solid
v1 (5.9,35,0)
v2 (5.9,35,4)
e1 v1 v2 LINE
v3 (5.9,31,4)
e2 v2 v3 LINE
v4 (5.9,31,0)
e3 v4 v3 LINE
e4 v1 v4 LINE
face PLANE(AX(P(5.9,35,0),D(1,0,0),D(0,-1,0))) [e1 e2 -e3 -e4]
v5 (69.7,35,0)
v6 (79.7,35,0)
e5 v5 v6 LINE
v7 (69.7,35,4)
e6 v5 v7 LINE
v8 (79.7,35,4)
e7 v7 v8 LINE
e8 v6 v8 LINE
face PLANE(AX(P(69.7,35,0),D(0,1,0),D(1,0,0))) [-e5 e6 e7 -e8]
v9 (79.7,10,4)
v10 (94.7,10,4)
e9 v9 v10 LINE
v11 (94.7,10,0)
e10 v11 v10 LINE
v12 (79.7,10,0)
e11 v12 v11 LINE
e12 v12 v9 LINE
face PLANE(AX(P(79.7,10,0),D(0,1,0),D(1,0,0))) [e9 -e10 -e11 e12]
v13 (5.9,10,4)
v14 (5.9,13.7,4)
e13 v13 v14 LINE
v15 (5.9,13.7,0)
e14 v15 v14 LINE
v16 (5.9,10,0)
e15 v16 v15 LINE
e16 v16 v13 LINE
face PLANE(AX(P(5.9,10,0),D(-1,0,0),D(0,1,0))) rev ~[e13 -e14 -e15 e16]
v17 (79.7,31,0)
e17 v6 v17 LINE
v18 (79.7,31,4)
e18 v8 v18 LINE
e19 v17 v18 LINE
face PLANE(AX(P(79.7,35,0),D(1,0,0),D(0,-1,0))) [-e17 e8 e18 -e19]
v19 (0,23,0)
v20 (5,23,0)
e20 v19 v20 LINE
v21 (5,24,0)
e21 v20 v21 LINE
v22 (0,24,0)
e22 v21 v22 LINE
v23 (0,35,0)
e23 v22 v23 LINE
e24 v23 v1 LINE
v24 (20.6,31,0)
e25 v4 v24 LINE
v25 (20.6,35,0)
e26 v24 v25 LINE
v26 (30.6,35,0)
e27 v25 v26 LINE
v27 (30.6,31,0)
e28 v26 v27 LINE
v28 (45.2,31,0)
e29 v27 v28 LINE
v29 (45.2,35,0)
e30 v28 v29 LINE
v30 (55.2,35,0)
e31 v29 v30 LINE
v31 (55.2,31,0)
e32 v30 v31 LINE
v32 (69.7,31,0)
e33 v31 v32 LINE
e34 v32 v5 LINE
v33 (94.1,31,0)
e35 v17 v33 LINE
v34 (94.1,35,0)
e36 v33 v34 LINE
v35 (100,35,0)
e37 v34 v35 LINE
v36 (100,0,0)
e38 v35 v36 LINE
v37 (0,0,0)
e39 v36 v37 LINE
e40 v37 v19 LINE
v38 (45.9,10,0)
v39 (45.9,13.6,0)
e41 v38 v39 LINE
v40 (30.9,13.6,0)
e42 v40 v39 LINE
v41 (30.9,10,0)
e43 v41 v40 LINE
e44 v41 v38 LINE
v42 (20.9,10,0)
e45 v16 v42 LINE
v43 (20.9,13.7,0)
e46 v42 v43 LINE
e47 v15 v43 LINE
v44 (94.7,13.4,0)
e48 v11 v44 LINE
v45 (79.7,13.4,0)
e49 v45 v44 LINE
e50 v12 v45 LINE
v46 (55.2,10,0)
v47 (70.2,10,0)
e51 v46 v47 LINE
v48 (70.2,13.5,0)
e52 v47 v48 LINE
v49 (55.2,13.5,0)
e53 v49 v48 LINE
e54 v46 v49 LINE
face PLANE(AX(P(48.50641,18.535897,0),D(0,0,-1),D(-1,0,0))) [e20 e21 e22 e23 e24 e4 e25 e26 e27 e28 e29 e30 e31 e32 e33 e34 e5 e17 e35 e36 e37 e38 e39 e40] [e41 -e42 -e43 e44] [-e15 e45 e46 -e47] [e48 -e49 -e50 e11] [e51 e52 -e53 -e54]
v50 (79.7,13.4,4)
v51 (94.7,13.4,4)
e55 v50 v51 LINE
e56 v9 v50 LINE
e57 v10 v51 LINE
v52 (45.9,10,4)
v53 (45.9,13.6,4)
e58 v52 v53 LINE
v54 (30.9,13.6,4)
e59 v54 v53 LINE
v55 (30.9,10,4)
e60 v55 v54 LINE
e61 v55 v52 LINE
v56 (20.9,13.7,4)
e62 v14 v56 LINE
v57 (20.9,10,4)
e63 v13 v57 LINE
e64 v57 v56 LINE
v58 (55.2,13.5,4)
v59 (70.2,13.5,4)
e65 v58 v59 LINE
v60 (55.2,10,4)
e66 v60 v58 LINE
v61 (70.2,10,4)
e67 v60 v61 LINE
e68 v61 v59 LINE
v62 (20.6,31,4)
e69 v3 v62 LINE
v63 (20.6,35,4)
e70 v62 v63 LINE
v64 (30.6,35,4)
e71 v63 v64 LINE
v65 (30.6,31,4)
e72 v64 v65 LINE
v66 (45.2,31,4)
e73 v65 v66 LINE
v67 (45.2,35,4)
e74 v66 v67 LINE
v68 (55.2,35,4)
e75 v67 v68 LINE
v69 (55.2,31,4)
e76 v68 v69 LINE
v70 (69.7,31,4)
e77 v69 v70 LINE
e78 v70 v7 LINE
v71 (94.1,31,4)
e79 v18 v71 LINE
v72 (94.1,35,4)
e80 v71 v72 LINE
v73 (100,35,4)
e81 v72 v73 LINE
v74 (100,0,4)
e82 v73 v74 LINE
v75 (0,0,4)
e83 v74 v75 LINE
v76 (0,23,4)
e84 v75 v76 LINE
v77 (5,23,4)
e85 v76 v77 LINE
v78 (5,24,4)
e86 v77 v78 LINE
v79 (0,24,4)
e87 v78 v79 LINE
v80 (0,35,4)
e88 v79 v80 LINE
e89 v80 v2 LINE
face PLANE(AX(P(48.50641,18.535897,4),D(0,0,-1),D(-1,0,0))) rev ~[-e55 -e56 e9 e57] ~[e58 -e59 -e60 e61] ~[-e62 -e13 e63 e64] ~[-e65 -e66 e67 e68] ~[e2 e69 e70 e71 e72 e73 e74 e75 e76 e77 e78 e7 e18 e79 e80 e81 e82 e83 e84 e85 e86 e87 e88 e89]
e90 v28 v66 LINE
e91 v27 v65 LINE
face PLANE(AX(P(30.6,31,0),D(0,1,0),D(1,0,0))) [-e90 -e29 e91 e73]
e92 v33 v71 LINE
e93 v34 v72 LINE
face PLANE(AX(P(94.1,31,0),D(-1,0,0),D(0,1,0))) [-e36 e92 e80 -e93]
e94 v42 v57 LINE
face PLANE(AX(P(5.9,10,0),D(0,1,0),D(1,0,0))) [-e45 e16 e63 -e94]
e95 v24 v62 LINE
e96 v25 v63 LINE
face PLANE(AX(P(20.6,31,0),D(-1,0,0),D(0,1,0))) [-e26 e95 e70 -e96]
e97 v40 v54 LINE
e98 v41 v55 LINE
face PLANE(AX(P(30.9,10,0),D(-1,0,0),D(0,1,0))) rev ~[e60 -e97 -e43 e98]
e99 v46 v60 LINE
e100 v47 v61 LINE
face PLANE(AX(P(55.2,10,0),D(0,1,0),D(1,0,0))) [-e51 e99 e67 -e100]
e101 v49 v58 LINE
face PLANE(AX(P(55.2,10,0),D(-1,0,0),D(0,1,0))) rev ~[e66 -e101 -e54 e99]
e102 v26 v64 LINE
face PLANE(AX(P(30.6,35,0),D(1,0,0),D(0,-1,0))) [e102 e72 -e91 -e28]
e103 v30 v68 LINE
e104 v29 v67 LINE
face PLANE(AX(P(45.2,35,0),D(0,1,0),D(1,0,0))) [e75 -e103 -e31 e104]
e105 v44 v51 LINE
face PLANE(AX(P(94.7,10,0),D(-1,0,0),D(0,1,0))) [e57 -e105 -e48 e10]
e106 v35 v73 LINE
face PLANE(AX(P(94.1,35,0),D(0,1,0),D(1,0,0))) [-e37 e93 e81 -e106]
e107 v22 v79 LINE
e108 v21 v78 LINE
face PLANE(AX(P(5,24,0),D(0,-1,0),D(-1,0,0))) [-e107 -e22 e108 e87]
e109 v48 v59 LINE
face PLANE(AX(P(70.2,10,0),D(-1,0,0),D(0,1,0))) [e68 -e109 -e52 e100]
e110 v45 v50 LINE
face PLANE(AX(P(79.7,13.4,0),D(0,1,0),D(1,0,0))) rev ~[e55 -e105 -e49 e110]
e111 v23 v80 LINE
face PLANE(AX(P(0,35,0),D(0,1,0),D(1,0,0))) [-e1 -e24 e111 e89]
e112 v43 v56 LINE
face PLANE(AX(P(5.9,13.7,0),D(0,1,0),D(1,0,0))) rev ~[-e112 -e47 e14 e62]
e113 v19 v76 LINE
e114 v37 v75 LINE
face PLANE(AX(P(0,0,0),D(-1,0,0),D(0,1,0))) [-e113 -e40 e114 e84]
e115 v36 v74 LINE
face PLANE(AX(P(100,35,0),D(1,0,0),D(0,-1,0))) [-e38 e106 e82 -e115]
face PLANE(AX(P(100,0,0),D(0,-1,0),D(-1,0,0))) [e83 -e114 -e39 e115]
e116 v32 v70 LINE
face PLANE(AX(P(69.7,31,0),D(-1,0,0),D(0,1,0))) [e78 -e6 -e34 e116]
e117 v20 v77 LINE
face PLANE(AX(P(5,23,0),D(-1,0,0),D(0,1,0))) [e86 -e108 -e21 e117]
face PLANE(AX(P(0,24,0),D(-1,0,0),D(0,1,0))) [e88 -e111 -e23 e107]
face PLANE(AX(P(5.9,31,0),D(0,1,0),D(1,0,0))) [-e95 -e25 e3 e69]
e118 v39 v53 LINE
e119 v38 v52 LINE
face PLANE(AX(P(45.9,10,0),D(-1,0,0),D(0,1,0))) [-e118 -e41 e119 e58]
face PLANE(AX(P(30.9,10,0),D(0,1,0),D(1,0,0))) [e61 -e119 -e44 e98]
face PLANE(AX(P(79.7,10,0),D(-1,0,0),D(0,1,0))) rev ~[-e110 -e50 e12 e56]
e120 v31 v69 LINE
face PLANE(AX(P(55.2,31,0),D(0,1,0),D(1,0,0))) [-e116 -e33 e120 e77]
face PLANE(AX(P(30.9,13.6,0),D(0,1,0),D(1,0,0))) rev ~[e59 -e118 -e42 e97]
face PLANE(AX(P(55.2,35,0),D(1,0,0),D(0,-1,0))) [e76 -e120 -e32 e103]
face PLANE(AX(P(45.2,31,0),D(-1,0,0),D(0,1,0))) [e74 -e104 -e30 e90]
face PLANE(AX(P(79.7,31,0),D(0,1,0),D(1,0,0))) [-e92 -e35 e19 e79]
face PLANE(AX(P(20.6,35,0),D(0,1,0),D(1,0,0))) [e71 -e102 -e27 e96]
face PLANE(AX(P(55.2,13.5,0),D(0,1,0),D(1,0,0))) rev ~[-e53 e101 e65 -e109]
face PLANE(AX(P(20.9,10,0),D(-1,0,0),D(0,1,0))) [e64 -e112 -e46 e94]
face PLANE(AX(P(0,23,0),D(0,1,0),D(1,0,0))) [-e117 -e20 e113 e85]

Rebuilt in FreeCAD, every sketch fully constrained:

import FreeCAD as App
import Part
import Sketcher
Q = App.Units.Quantity

doc = App.newDocument("Part")
params = doc.addObject("Spreadsheet::Sheet", "Params")
for row, (alias, value) in enumerate([
    ("sketch1_width", "5 mm"),
    ("sketch1_width2", "100 mm"),
    ("sketch1_width3", "10 mm"),
    ("sketch1_width4", "15 mm"),
    ("sketch1_height", "4 mm"),
    ("pad1_length", "4 mm"),
], start=1):
    params.set(f"A{row}", alias)
    params.set(f"B{row}", "=" + value)
    params.setAlias(f"B{row}", alias)

body = doc.addObject("PartDesign::Body", "Body")

sketch1 = body.newObject("Sketcher::SketchObject", "Sketch")
sketch1.AttachmentSupport = (doc.getObject("XY_Plane"), [""])
sketch1.MapMode = "FlatFace"
sketch1.addGeometry(Part.LineSegment(App.Vector(5.9, 31, 0), App.Vector(5.9, 35, 0)), False)
sketch1.addGeometry(Part.LineSegment(App.Vector(5.9, 35, 0), App.Vector(0, 35, 0)), False)
sketch1.addGeometry(Part.LineSegment(App.Vector(0, 35, 0), App.Vector(0, 24, 0)), False)
sketch1.addGeometry(Part.LineSegment(App.Vector(0, 24, 0), App.Vector(5, 24, 0)), False)
sketch1.addGeometry(Part.LineSegment(App.Vector(5, 24, 0), App.Vector(5, 23, 0)), False)
sketch1.addGeometry(Part.LineSegment(App.Vector(5, 23, 0), App.Vector(0, 23, 0)), False)
sketch1.addGeometry(Part.LineSegment(App.Vector(0, 23, 0), App.Vector(0, 0, 0)), False)
sketch1.addGeometry(Part.LineSegment(App.Vector(0, 0, 0), App.Vector(100, 0, 0)), False)
sketch1.addGeometry(Part.LineSegment(App.Vector(100, 0, 0), App.Vector(100, 35, 0)), False)
sketch1.addGeometry(Part.LineSegment(App.Vector(100, 35, 0), App.Vector(94.1, 35, 0)), False)
sketch1.addGeometry(Part.LineSegment(App.Vector(94.1, 35, 0), App.Vector(94.1, 31, 0)), False)
sketch1.addGeometry(Part.LineSegment(App.Vector(94.1, 31, 0), App.Vector(79.7, 31, 0)), False)
sketch1.addGeometry(Part.LineSegment(App.Vector(79.7, 31, 0), App.Vector(79.7, 35, 0)), False)
sketch1.addGeometry(Part.LineSegment(App.Vector(79.7, 35, 0), App.Vector(69.7, 35, 0)), False)
sketch1.addGeometry(Part.LineSegment(App.Vector(69.7, 35, 0), App.Vector(69.7, 31, 0)), False)
sketch1.addGeometry(Part.LineSegment(App.Vector(69.7, 31, 0), App.Vector(55.2, 31, 0)), False)
sketch1.addGeometry(Part.LineSegment(App.Vector(55.2, 31, 0), App.Vector(55.2, 35, 0)), False)
sketch1.addGeometry(Part.LineSegment(App.Vector(55.2, 35, 0), App.Vector(45.2, 35, 0)), False)
sketch1.addGeometry(Part.LineSegment(App.Vector(45.2, 35, 0), App.Vector(45.2, 31, 0)), False)
sketch1.addGeometry(Part.LineSegment(App.Vector(45.2, 31, 0), App.Vector(30.6, 31, 0)), False)
sketch1.addGeometry(Part.LineSegment(App.Vector(30.6, 31, 0), App.Vector(30.6, 35, 0)), False)
sketch1.addGeometry(Part.LineSegment(App.Vector(30.6, 35, 0), App.Vector(20.6, 35, 0)), False)
sketch1.addGeometry(Part.LineSegment(App.Vector(20.6, 35, 0), App.Vector(20.6, 31, 0)), False)
sketch1.addGeometry(Part.LineSegment(App.Vector(20.6, 31, 0), App.Vector(5.9, 31, 0)), False)
sketch1.addGeometry(Part.LineSegment(App.Vector(79.7, 10, 0), App.Vector(79.7, 13.4, 0)), False)
sketch1.addGeometry(Part.LineSegment(App.Vector(79.7, 13.4, 0), App.Vector(94.7, 13.4, 0)), False)
sketch1.addGeometry(Part.LineSegment(App.Vector(94.7, 13.4, 0), App.Vector(94.7, 10, 0)), False)
sketch1.addGeometry(Part.LineSegment(App.Vector(94.7, 10, 0), App.Vector(79.7, 10, 0)), False)
sketch1.addGeometry(Part.LineSegment(App.Vector(55.2, 10, 0), App.Vector(55.2, 13.5, 0)), False)
sketch1.addGeometry(Part.LineSegment(App.Vector(55.2, 13.5, 0), App.Vector(70.2, 13.5, 0)), False)
sketch1.addGeometry(Part.LineSegment(App.Vector(70.2, 13.5, 0), App.Vector(70.2, 10, 0)), False)
sketch1.addGeometry(Part.LineSegment(App.Vector(70.2, 10, 0), App.Vector(55.2, 10, 0)), False)
sketch1.addGeometry(Part.LineSegment(App.Vector(30.9, 10, 0), App.Vector(30.9, 13.6, 0)), False)
sketch1.addGeometry(Part.LineSegment(App.Vector(30.9, 13.6, 0), App.Vector(45.9, 13.6, 0)), False)
sketch1.addGeometry(Part.LineSegment(App.Vector(45.9, 13.6, 0), App.Vector(45.9, 10, 0)), False)
sketch1.addGeometry(Part.LineSegment(App.Vector(45.9, 10, 0), App.Vector(30.9, 10, 0)), False)
sketch1.addGeometry(Part.LineSegment(App.Vector(5.9, 10, 0), App.Vector(5.9, 13.7, 0)), False)
sketch1.addGeometry(Part.LineSegment(App.Vector(5.9, 13.7, 0), App.Vector(20.9, 13.7, 0)), False)
sketch1.addGeometry(Part.LineSegment(App.Vector(20.9, 13.7, 0), App.Vector(20.9, 10, 0)), False)
sketch1.addGeometry(Part.LineSegment(App.Vector(20.9, 10, 0), App.Vector(5.9, 10, 0)), False)
sketch1.addConstraint(Sketcher.Constraint("Coincident", 0, 2, 1, 1))
sketch1.addConstraint(Sketcher.Constraint("Coincident", 1, 2, 2, 1))
sketch1.addConstraint(Sketcher.Constraint("Coincident", 2, 2, 3, 1))
sketch1.addConstraint(Sketcher.Constraint("Coincident", 3, 2, 4, 1))
sketch1.addConstraint(Sketcher.Constraint("Coincident", 4, 2, 5, 1))
sketch1.addConstraint(Sketcher.Constraint("Coincident", 5, 2, 6, 1))
sketch1.addConstraint(Sketcher.Constraint("Coincident", 6, 2, 7, 1))
sketch1.addConstraint(Sketcher.Constraint("Coincident", 7, 2, 8, 1))
sketch1.addConstraint(Sketcher.Constraint("Coincident", 8, 2, 9, 1))
sketch1.addConstraint(Sketcher.Constraint("Coincident", 9, 2, 10, 1))
sketch1.addConstraint(Sketcher.Constraint("Coincident", 10, 2, 11, 1))
sketch1.addConstraint(Sketcher.Constraint("Coincident", 11, 2, 12, 1))
sketch1.addConstraint(Sketcher.Constraint("Coincident", 12, 2, 13, 1))
sketch1.addConstraint(Sketcher.Constraint("Coincident", 13, 2, 14, 1))
sketch1.addConstraint(Sketcher.Constraint("Coincident", 14, 2, 15, 1))
sketch1.addConstraint(Sketcher.Constraint("Coincident", 15, 2, 16, 1))
sketch1.addConstraint(Sketcher.Constraint("Coincident", 16, 2, 17, 1))
sketch1.addConstraint(Sketcher.Constraint("Coincident", 17, 2, 18, 1))
sketch1.addConstraint(Sketcher.Constraint("Coincident", 18, 2, 19, 1))
sketch1.addConstraint(Sketcher.Constraint("Coincident", 19, 2, 20, 1))
sketch1.addConstraint(Sketcher.Constraint("Coincident", 20, 2, 21, 1))
sketch1.addConstraint(Sketcher.Constraint("Coincident", 21, 2, 22, 1))
sketch1.addConstraint(Sketcher.Constraint("Coincident", 22, 2, 23, 1))
sketch1.addConstraint(Sketcher.Constraint("Coincident", 23, 2, 0, 1))
sketch1.addConstraint(Sketcher.Constraint("Coincident", 24, 2, 25, 1))
sketch1.addConstraint(Sketcher.Constraint("Coincident", 25, 2, 26, 1))
sketch1.addConstraint(Sketcher.Constraint("Coincident", 26, 2, 27, 1))
sketch1.addConstraint(Sketcher.Constraint("Coincident", 27, 2, 24, 1))
sketch1.addConstraint(Sketcher.Constraint("Coincident", 28, 2, 29, 1))
sketch1.addConstraint(Sketcher.Constraint("Coincident", 29, 2, 30, 1))
sketch1.addConstraint(Sketcher.Constraint("Coincident", 30, 2, 31, 1))
sketch1.addConstraint(Sketcher.Constraint("Coincident", 31, 2, 28, 1))
sketch1.addConstraint(Sketcher.Constraint("Coincident", 32, 2, 33, 1))
sketch1.addConstraint(Sketcher.Constraint("Coincident", 33, 2, 34, 1))
sketch1.addConstraint(Sketcher.Constraint("Coincident", 34, 2, 35, 1))
sketch1.addConstraint(Sketcher.Constraint("Coincident", 35, 2, 32, 1))
sketch1.addConstraint(Sketcher.Constraint("Coincident", 36, 2, 37, 1))
sketch1.addConstraint(Sketcher.Constraint("Coincident", 37, 2, 38, 1))
sketch1.addConstraint(Sketcher.Constraint("Coincident", 38, 2, 39, 1))
sketch1.addConstraint(Sketcher.Constraint("Coincident", 39, 2, 36, 1))
sketch1.addConstraint(Sketcher.Constraint("Vertical", 0))
sketch1.addConstraint(Sketcher.Constraint("Horizontal", 1))
sketch1.addConstraint(Sketcher.Constraint("Vertical", 2))
sketch1.addConstraint(Sketcher.Constraint("Horizontal", 3))
sketch1.addConstraint(Sketcher.Constraint("Vertical", 4))
sketch1.addConstraint(Sketcher.Constraint("Horizontal", 5))
sketch1.addConstraint(Sketcher.Constraint("Vertical", 6))
sketch1.addConstraint(Sketcher.Constraint("Horizontal", 7))
sketch1.addConstraint(Sketcher.Constraint("Vertical", 8))
sketch1.addConstraint(Sketcher.Constraint("Horizontal", 9))
sketch1.addConstraint(Sketcher.Constraint("Vertical", 10))
sketch1.addConstraint(Sketcher.Constraint("Horizontal", 11))
sketch1.addConstraint(Sketcher.Constraint("Vertical", 12))
sketch1.addConstraint(Sketcher.Constraint("Horizontal", 13))
sketch1.addConstraint(Sketcher.Constraint("Vertical", 14))
sketch1.addConstraint(Sketcher.Constraint("Horizontal", 15))
sketch1.addConstraint(Sketcher.Constraint("Vertical", 16))
sketch1.addConstraint(Sketcher.Constraint("Horizontal", 17))
sketch1.addConstraint(Sketcher.Constraint("Vertical", 18))
sketch1.addConstraint(Sketcher.Constraint("Horizontal", 19))
sketch1.addConstraint(Sketcher.Constraint("Vertical", 20))
sketch1.addConstraint(Sketcher.Constraint("Horizontal", 21))
sketch1.addConstraint(Sketcher.Constraint("Vertical", 22))
sketch1.addConstraint(Sketcher.Constraint("Horizontal", 23))
sketch1.addConstraint(Sketcher.Constraint("Vertical", 24))
sketch1.addConstraint(Sketcher.Constraint("Horizontal", 25))
sketch1.addConstraint(Sketcher.Constraint("Vertical", 26))
sketch1.addConstraint(Sketcher.Constraint("Horizontal", 27))
sketch1.addConstraint(Sketcher.Constraint("Vertical", 28))
sketch1.addConstraint(Sketcher.Constraint("Horizontal", 29))
sketch1.addConstraint(Sketcher.Constraint("Vertical", 30))
sketch1.addConstraint(Sketcher.Constraint("Horizontal", 31))
sketch1.addConstraint(Sketcher.Constraint("Vertical", 32))
sketch1.addConstraint(Sketcher.Constraint("Horizontal", 33))
sketch1.addConstraint(Sketcher.Constraint("Vertical", 34))
sketch1.addConstraint(Sketcher.Constraint("Horizontal", 35))
sketch1.addConstraint(Sketcher.Constraint("Vertical", 36))
sketch1.addConstraint(Sketcher.Constraint("Horizontal", 37))
sketch1.addConstraint(Sketcher.Constraint("Vertical", 38))
sketch1.addConstraint(Sketcher.Constraint("Horizontal", 39))
sketch1.addConstraint(Sketcher.Constraint("Coincident", 6, 2, -1, 1))
sketch1.addConstraint(Sketcher.Constraint("PointOnObject", 1, 2, -2))
sketch1.addConstraint(Sketcher.Constraint("Horizontal", 1, 2, 8, 2))
sketch1.addConstraint(Sketcher.Constraint("Horizontal", 9, 2, 12, 2))
sketch1.addConstraint(Sketcher.Constraint("Horizontal", 11, 2, 14, 2))
sketch1.addConstraint(Sketcher.Constraint("Horizontal", 13, 2, 16, 2))
sketch1.addConstraint(Sketcher.Constraint("Horizontal", 15, 2, 18, 2))
sketch1.addConstraint(Sketcher.Constraint("Horizontal", 17, 2, 20, 2))
sketch1.addConstraint(Sketcher.Constraint("Horizontal", 19, 2, 22, 2))
sketch1.addConstraint(Sketcher.Constraint("Horizontal", 27, 2, 30, 2))
sketch1.addConstraint(Sketcher.Constraint("Horizontal", 31, 2, 34, 2))
sketch1.addConstraint(Sketcher.Constraint("Horizontal", 35, 2, 38, 2))
sketch1.addConstraint(Sketcher.Constraint("Vertical", 12, 2, 24, 2))
sketch1.addConstraint(Sketcher.Constraint("Vertical", 16, 2, 28, 2))
sketch1.addConstraint(Sketcher.Constraint("Vertical", 23, 2, 36, 2))
sketch1.addConstraint(Sketcher.Constraint("Equal", 1, 9))
sketch1.addConstraint(Sketcher.Constraint("Equal", 13, 17))
sketch1.addConstraint(Sketcher.Constraint("Equal", 17, 21))
sketch1.addConstraint(Sketcher.Constraint("Equal", 27, 29))
sketch1.addConstraint(Sketcher.Constraint("Equal", 31, 33))
sketch1.addConstraint(Sketcher.Constraint("Equal", 35, 37))
sketch1.addConstraint(Sketcher.Constraint("DistanceX", 3, 1, 3, 2, Q("5 mm")))
sketch1.addConstraint(Sketcher.Constraint("DistanceX", 7, 1, 7, 2, Q("100 mm")))
sketch1.addConstraint(Sketcher.Constraint("DistanceX", 13, 2, 13, 1, Q("10 mm")))
sketch1.addConstraint(Sketcher.Constraint("DistanceX", 25, 1, 25, 2, Q("15 mm")))
sketch1.addConstraint(Sketcher.Constraint("DistanceY", 0, 1, 0, 2, Q("4 mm")))
sketch1.addConstraint(Sketcher.Constraint("DistanceY", 2, 2, 2, 1, Q("11 mm")))
sketch1.addConstraint(Sketcher.Constraint("DistanceY", 4, 2, 4, 1, Q("1 mm")))
sketch1.addConstraint(Sketcher.Constraint("DistanceY", 6, 2, 6, 1, Q("23 mm")))
sketch1.addConstraint(Sketcher.Constraint("DistanceX", 1, 2, 1, 1, Q("5.9 mm")))
sketch1.addConstraint(Sketcher.Constraint("DistanceX", 11, 2, 11, 1, Q("14.4 mm")))
sketch1.addConstraint(Sketcher.Constraint("DistanceX", 15, 2, 15, 1, Q("14.5 mm")))
sketch1.addConstraint(Sketcher.Constraint("DistanceX", 19, 2, 19, 1, Q("14.6 mm")))
sketch1.addConstraint(Sketcher.Constraint("DistanceY", 24, 1, 24, 2, Q("3.4 mm")))
sketch1.addConstraint(Sketcher.Constraint("DistanceY", 28, 1, 28, 2, Q("3.5 mm")))
sketch1.addConstraint(Sketcher.Constraint("DistanceY", 32, 1, 32, 2, Q("3.6 mm")))
sketch1.addConstraint(Sketcher.Constraint("DistanceY", 36, 1, 36, 2, Q("3.7 mm")))
sketch1.addConstraint(Sketcher.Constraint("DistanceY", -1, 1, 26, 2, Q("10 mm")))
sketch1.addConstraint(Sketcher.Constraint("DistanceX", 37, 2, 32, 2, Q("10 mm")))
sketch1.setExpression("Constraints[101]", "Params.sketch1_width")
sketch1.setExpression("Constraints[102]", "Params.sketch1_width2")
sketch1.setExpression("Constraints[103]", "Params.sketch1_width3")
sketch1.setExpression("Constraints[104]", "Params.sketch1_width4")
sketch1.setExpression("Constraints[105]", "Params.sketch1_height")
pad1 = body.newObject("PartDesign::Pad", "Pad")
pad1.Profile = sketch1
pad1.setExpression("Length", "Params.pad1_length")

doc.recompute()
